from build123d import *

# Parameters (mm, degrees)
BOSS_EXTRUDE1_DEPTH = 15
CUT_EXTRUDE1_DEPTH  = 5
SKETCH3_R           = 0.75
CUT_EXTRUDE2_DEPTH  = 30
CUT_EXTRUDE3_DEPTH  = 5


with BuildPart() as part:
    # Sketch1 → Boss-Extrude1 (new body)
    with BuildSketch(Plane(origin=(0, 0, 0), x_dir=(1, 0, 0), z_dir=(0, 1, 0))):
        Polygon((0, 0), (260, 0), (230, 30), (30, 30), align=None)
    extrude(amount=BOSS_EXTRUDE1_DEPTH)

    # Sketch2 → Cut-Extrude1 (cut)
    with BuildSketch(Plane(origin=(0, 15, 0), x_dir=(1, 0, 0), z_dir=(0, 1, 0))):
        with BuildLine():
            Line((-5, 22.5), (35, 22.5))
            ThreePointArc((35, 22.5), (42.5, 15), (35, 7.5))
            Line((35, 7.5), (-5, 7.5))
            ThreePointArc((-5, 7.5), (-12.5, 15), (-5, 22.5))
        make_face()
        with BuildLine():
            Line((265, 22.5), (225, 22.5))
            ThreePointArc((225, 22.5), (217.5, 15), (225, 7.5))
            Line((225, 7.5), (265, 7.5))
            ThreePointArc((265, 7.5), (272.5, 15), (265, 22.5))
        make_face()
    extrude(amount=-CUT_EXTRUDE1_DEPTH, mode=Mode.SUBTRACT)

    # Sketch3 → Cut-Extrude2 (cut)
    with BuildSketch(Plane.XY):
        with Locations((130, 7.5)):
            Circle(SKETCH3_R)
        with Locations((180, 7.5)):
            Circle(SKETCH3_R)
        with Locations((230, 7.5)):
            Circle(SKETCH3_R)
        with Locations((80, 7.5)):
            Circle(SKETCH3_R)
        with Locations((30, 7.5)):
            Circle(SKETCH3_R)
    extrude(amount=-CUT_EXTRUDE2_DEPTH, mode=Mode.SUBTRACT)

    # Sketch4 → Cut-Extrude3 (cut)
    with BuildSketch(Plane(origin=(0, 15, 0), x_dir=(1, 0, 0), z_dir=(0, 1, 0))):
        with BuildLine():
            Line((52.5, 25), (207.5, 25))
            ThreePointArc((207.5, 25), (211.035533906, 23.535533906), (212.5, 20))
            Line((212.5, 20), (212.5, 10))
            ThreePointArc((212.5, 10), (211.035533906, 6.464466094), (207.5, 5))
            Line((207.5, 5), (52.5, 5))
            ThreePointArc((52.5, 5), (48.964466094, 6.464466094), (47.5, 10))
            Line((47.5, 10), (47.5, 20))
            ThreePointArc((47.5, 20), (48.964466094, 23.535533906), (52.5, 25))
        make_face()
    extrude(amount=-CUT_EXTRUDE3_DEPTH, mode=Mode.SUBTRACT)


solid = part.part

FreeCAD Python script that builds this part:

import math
import FreeCAD as App
import Part
import Sketcher

V = App.Vector
Q = App.Units.Quantity


def add_polygon(sketch, points):
    """Adds a closed chain of lines whose ends are joined by coincident constraints."""
    first, n = sketch.GeometryCount, len(points)
    for a, b in zip(points, points[1:] + points[:1]):
        sketch.addGeometry(Part.LineSegment(App.Vector(*a, 0), App.Vector(*b, 0)), False)
    for i in range(n):
        sketch.addConstraint(Sketcher.Constraint("Coincident", first + i, 2, first + (i + 1) % n, 1))

doc = App.newDocument("Part")
body = doc.addObject("PartDesign::Body", "Body")

# Sketch on XZ plane
sketch1 = doc.addObject("Sketcher::SketchObject", "Sketch")
body.addObject(sketch1)
sketch1.AttachmentSupport = (doc.XZ_Plane, [""])
sketch1.MapMode = "FlatFace"
add_polygon(sketch1, [(0, 0), (260, 0), (230, -30), (30, -30)])  # lines 0-3
sketch1.addConstraint(Sketcher.Constraint("Horizontal", 0))
sketch1.addConstraint(Sketcher.Constraint("Horizontal", 2))
sketch1.addConstraint(Sketcher.Constraint("Coincident", 3, 2, -1, 1))
sketch1.addConstraint(Sketcher.Constraint("Perpendicular", 1, 3))
sketch1.addConstraint(Sketcher.Constraint("Equal", 1, 3))
sketch1.addConstraint(Sketcher.Constraint("DistanceX", 0, 1, 0, 2, Q("260 mm")))
sketch1.addConstraint(Sketcher.Constraint("DistanceX", 2, 2, 2, 1, Q("200 mm")))
pad1 = doc.addObject("PartDesign::Pad", "Pad")
body.addObject(pad1)
pad1.Profile = sketch1
pad1.Length = 15
pad1.Reversed = True

# Sketch on XZ plane
sketch2 = doc.addObject("Sketcher::SketchObject", "Sketch001")
body.addObject(sketch2)
sketch2.AttachmentSupport = (doc.XZ_Plane, [""])
sketch2.MapMode = "FlatFace"
sketch2.AttachmentOffset = App.Placement(V(0, 0, -15), App.Rotation())
sketch2.addGeometry(Part.LineSegment(V(35, -22, 0), V(-5, -22, 0)), False)
sketch2.addGeometry(Part.ArcOfCircle(Part.Circle(V(-5, -15, 0), V(0, 0, 1), 8), math.radians(90), math.radians(270)), False)
sketch2.addGeometry(Part.LineSegment(V(-5, -8, 0), V(35, -8, 0)), False)
sketch2.addGeometry(Part.ArcOfCircle(Part.Circle(V(35, -15, 0), V(0, 0, 1), 8), math.radians(-90), math.radians(90)), False)
sketch2.addGeometry(Part.LineSegment(V(265, -22, 0), V(225, -22, 0)), False)
sketch2.addGeometry(Part.ArcOfCircle(Part.Circle(V(225, -15, 0), V(0, 0, 1), 8), math.radians(90), math.radians(270)), False)
sketch2.addGeometry(Part.LineSegment(V(225, -8, 0), V(265, -8, 0)), False)
sketch2.addGeometry(Part.ArcOfCircle(Part.Circle(V(265, -15, 0), V(0, 0, 1), 8), math.radians(-90), math.radians(90)), False)
sketch2.addConstraint(Sketcher.Constraint("Tangent", 0, 2, 1, 2))
sketch2.addConstraint(Sketcher.Constraint("Tangent", 1, 1, 2, 1))
sketch2.addConstraint(Sketcher.Constraint("Tangent", 2, 2, 3, 2))
sketch2.addConstraint(Sketcher.Constraint("Tangent", 3, 1, 0, 1))
sketch2.addConstraint(Sketcher.Constraint("Tangent", 4, 2, 5, 2))
sketch2.addConstraint(Sketcher.Constraint("Tangent", 5, 1, 6, 1))
sketch2.addConstraint(Sketcher.Constraint("Tangent", 6, 2, 7, 2))
sketch2.addConstraint(Sketcher.Constraint("Tangent", 7, 1, 4, 1))
sketch2.addConstraint(Sketcher.Constraint("Horizontal", 0))
sketch2.addConstraint(Sketcher.Constraint("Horizontal", 2))
sketch2.addConstraint(Sketcher.Constraint("Horizontal", 4))
sketch2.addConstraint(Sketcher.Constraint("Horizontal", 6))
sketch2.addConstraint(Sketcher.Constraint("Equal", 3, 5))
sketch2.addConstraint(Sketcher.Constraint("Horizontal", 3, 3, 5, 3))
sketch2.addConstraint(Sketcher.Constraint("Equal", 2, 4))
sketch2.addConstraint(Sketcher.Constraint("Radius", 1, Q("7.5 mm")))
sketch2.addConstraint(Sketcher.Constraint("DistanceX", 0, 2, 0, 1, Q("40 mm")))
sketch2.addConstraint(Sketcher.Constraint("DistanceX", 1, 3, -1, 1, Q("5 mm")))
sketch2.addConstraint(Sketcher.Constraint("DistanceY", 1, 3, -1, 1, Q("15 mm")))
sketch2.addConstraint(Sketcher.Constraint("DistanceX", -1, 1, 5, 3, Q("225 mm")))
pocket1 = doc.addObject("PartDesign::Pocket", "Pocket")
body.addObject(pocket1)
pocket1.Profile = sketch2
pocket1.Length = 5
pocket1.Reversed = True

# Sketch on XY plane
sketch3 = doc.addObject("Sketcher::SketchObject", "Sketch002")
body.addObject(sketch3)
sketch3.AttachmentSupport = (doc.XY_Plane, [""])
sketch3.MapMode = "FlatFace"
sketch3.addGeometry(Part.Circle(V(130, 7.5, 0), V(0, 0, 1), 0.8), False)
sketch3.addGeometry(Part.Circle(V(180, 7.5, 0), V(0, 0, 1), 0.8), False)
sketch3.addGeometry(Part.Circle(V(230, 7.5, 0), V(0, 0, 1), 0.8), False)
sketch3.addGeometry(Part.Circle(V(80, 7.5, 0), V(0, 0, 1), 0.8), False)
sketch3.addGeometry(Part.Circle(V(30, 7.5, 0), V(0, 0, 1), 0.8), False)
sketch3.addConstraint(Sketcher.Constraint("Equal", 0, 1))
sketch3.addConstraint(Sketcher.Constraint("Equal", 1, 2))
sketch3.addConstraint(Sketcher.Constraint("Equal", 2, 3))
sketch3.addConstraint(Sketcher.Constraint("Equal", 3, 4))
sketch3.addConstraint(Sketcher.Constraint("Horizontal", 0, 3, 1, 3))
sketch3.addConstraint(Sketcher.Constraint("Horizontal", 1, 3, 2, 3))
sketch3.addConstraint(Sketcher.Constraint("Horizontal", 2, 3, 3, 3))
sketch3.addConstraint(Sketcher.Constraint("Horizontal", 3, 3, 4, 3))
sketch3.addConstraint(Sketcher.Constraint("Diameter", 0, Q("1.5 mm")))
sketch3.addConstraint(Sketcher.Constraint("DistanceX", -1, 1, 0, 3, Q("130 mm")))
sketch3.addConstraint(Sketcher.Constraint("DistanceX", -1, 1, 1, 3, Q("180 mm")))
sketch3.addConstraint(Sketcher.Constraint("DistanceX", -1, 1, 2, 3, Q("230 mm")))
sketch3.addConstraint(Sketcher.Constraint("DistanceX", -1, 1, 3, 3, Q("80 mm")))
sketch3.addConstraint(Sketcher.Constraint("DistanceX", -1, 1, 4, 3, Q("30 mm")))
sketch3.addConstraint(Sketcher.Constraint("DistanceY", -1, 1, 0, 3, Q("7.5 mm")))
pocket2 = doc.addObject("PartDesign::Pocket", "Pocket001")
body.addObject(pocket2)
pocket2.Profile = sketch3
pocket2.Length = 30

# Sketch on XZ plane
sketch4 = doc.addObject("Sketcher::SketchObject", "Sketch003")
body.addObject(sketch4)
sketch4.AttachmentSupport = (doc.XZ_Plane, [""])
sketch4.MapMode = "FlatFace"
sketch4.AttachmentOffset = App.Placement(V(0, 0, -15), App.Rotation())
sketch4.addGeometry(Part.LineSegment(V(208, -25, 0), V(52, -25, 0)), False)
sketch4.addGeometry(Part.ArcOfCircle(Part.Circle(V(52, -20, 0), V(0, 0, 1), 5), math.radians(180), math.radians(270)), False)
sketch4.addGeometry(Part.LineSegment(V(48, -20, 0), V(48, -10, 0)), False)
sketch4.addGeometry(Part.ArcOfCircle(Part.Circle(V(52, -10, 0), V(0, 0, 1), 5), math.radians(90), math.radians(180)), False)
sketch4.addGeometry(Part.LineSegment(V(52, -5, 0), V(208, -5, 0)), False)
sketch4.addGeometry(Part.ArcOfCircle(Part.Circle(V(208, -10, 0), V(0, 0, 1), 5), math.radians(0), math.radians(90)), False)
sketch4.addGeometry(Part.LineSegment(V(212, -10, 0), V(212, -20, 0)), False)
sketch4.addGeometry(Part.ArcOfCircle(Part.Circle(V(208, -20, 0), V(0, 0, 1), 5), math.radians(-90), math.radians(0)), False)
sketch4.addConstraint(Sketcher.Constraint("Tangent", 0, 2, 1, 2))
sketch4.addConstraint(Sketcher.Constraint("Tangent", 1, 1, 2, 1))
sketch4.addConstraint(Sketcher.Constraint("Tangent", 2, 2, 3, 2))
sketch4.addConstraint(Sketcher.Constraint("Tangent", 3, 1, 4, 1))
sketch4.addConstraint(Sketcher.Constraint("Tangent", 4, 2, 5, 2))
sketch4.addConstraint(Sketcher.Constraint("Tangent", 5, 1, 6, 1))
sketch4.addConstraint(Sketcher.Constraint("Tangent", 6, 2, 7, 2))
sketch4.addConstraint(Sketcher.Constraint("Tangent", 7, 1, 0, 1))
sketch4.addConstraint(Sketcher.Constraint("Horizontal", 0))
sketch4.addConstraint(Sketcher.Constraint("Vertical", 2))
sketch4.addConstraint(Sketcher.Constraint("Horizontal", 4))
sketch4.addConstraint(Sketcher.Constraint("Vertical", 6))
sketch4.addConstraint(Sketcher.Constraint("Equal", 1, 3))
sketch4.addConstraint(Sketcher.Constraint("Equal", 3, 5))
sketch4.addConstraint(Sketcher.Constraint("Equal", 5, 7))
sketch4.addConstraint(Sketcher.Constraint("Radius", 1, Q("5 mm")))
sketch4.addConstraint(Sketcher.Constraint("DistanceX", 0, 2, 0, 1, Q("155 mm")))
sketch4.addConstraint(Sketcher.Constraint("DistanceY", 2, 1, 2, 2, Q("10 mm")))
sketch4.addConstraint(Sketcher.Constraint("DistanceY", 1, 3, -1, 1, Q("20 mm")))
sketch4.addConstraint(Sketcher.Constraint("DistanceX", -1, 1, 1, 3, Q("52.5 mm")))
pocket3 = doc.addObject("PartDesign::Pocket", "Pocket002")
body.addObject(pocket3)
pocket3.Profile = sketch4
pocket3.Length = 5
pocket3.Reversed = True

doc.recompute()
